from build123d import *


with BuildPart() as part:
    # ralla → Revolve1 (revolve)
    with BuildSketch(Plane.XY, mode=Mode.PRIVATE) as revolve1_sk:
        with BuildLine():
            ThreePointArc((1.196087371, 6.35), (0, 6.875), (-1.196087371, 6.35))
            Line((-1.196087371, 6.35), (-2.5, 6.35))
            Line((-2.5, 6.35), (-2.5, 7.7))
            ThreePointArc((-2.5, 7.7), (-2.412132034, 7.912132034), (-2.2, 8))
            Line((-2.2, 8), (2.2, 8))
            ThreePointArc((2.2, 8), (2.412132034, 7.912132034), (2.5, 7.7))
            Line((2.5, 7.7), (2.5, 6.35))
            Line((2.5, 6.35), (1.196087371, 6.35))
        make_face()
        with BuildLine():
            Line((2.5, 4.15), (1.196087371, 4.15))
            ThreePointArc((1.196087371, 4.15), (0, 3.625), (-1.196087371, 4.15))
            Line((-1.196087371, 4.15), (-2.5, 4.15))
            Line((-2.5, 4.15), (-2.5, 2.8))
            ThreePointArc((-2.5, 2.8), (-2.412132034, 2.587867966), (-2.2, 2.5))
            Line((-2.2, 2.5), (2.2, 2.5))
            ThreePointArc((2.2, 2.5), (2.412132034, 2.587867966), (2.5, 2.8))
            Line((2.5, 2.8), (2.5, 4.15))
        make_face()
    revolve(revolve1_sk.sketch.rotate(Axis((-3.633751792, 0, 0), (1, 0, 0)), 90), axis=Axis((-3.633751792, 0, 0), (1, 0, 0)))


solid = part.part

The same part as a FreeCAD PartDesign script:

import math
import FreeCAD as App
import Part
import Sketcher

doc = App.newDocument("Part")
params = doc.addObject("Spreadsheet::Sheet", "Params")
for row, (alias, value) in enumerate([
    ("sketch1_radius", "0.3 mm"),
    ("sketch1_width", "4.4 mm"),
    ("sketch1_height", "1.35 mm"),
    ("revolution_angle", "360 deg"),
], start=1):
    params.set(f"A{row}", alias)
    params.set(f"B{row}", "=" + value)
    params.setAlias(f"B{row}", alias)

body = doc.addObject("PartDesign::Body", "Body")
body.AllowCompound = True

sketch1 = doc.addObject("Sketcher::SketchObject", "Sketch")
body.addObject(sketch1)
sketch1.AttachmentSupport = (doc.XY_Plane, [""])
sketch1.MapMode = "FlatFace"
sketch1.addGeometry(Part.ArcOfCircle(Part.Circle(App.Vector(0, 5.25, 0), App.Vector(0, 0, 1), 1.62), math.radians(43), math.radians(137)), False)
sketch1.addGeometry(Part.LineSegment(App.Vector(1.2, 6.35, 0), App.Vector(2.5, 6.35, 0)), False)
sketch1.addGeometry(Part.LineSegment(App.Vector(2.5, 6.35, 0), App.Vector(2.5, 7.7, 0)), False)
sketch1.addGeometry(Part.ArcOfCircle(Part.Circle(App.Vector(2.2, 7.7, 0), App.Vector(0, 0, 1), 0.3), math.radians(0), math.radians(90)), False)
sketch1.addGeometry(Part.LineSegment(App.Vector(2.2, 8, 0), App.Vector(-2.2, 8, 0)), False)
sketch1.addGeometry(Part.ArcOfCircle(Part.Circle(App.Vector(-2.2, 7.7, 0), App.Vector(0, 0, 1), 0.3), math.radians(90), math.radians(180)), False)
sketch1.addGeometry(Part.LineSegment(App.Vector(-2.5, 7.7, 0), App.Vector(-2.5, 6.35, 0)), False)
sketch1.addGeometry(Part.LineSegment(App.Vector(-2.5, 6.35, 0), App.Vector(-1.2, 6.35, 0)), False)
sketch1.addGeometry(Part.LineSegment(App.Vector(2.5, 4.15, 0), App.Vector(1.2, 4.15, 0)), False)
sketch1.addGeometry(Part.ArcOfCircle(Part.Circle(App.Vector(0, 5.25, 0), App.Vector(0, 0, 1), 1.62), math.radians(-137), math.radians(-43)), False)
sketch1.addGeometry(Part.LineSegment(App.Vector(-1.2, 4.15, 0), App.Vector(-2.5, 4.15, 0)), False)
sketch1.addGeometry(Part.LineSegment(App.Vector(-2.5, 4.15, 0), App.Vector(-2.5, 2.8, 0)), False)
sketch1.addGeometry(Part.ArcOfCircle(Part.Circle(App.Vector(-2.2, 2.8, 0), App.Vector(0, 0, 1), 0.3), math.radians(-180), math.radians(-90)), False)
sketch1.addGeometry(Part.LineSegment(App.Vector(-2.2, 2.5, 0), App.Vector(2.2, 2.5, 0)), False)
sketch1.addGeometry(Part.ArcOfCircle(Part.Circle(App.Vector(2.2, 2.8, 0), App.Vector(0, 0, 1), 0.3), math.radians(-90), math.radians(0)), False)
sketch1.addGeometry(Part.LineSegment(App.Vector(2.5, 2.8, 0), App.Vector(2.5, 4.15, 0)), False)
sketch1.addConstraint(Sketcher.Constraint("Coincident", 0, 1, 1, 1))
sketch1.addConstraint(Sketcher.Constraint("Coincident", 1, 2, 2, 1))
sketch1.addConstraint(Sketcher.Constraint("Tangent", 2, 2, 3, 1))
sketch1.addConstraint(Sketcher.Constraint("Tangent", 3, 2, 4, 1))
sketch1.addConstraint(Sketcher.Constraint("Tangent", 4, 2, 5, 1))
sketch1.addConstraint(Sketcher.Constraint("Tangent", 5, 2, 6, 1))
sketch1.addConstraint(Sketcher.Constraint("Coincident", 6, 2, 7, 1))
sketch1.addConstraint(Sketcher.Constraint("Coincident", 7, 2, 0, 2))
sketch1.addConstraint(Sketcher.Constraint("Coincident", 8, 2, 9, 2))
sketch1.addConstraint(Sketcher.Constraint("Coincident", 9, 1, 10, 1))
sketch1.addConstraint(Sketcher.Constraint("Coincident", 10, 2, 11, 1))
sketch1.addConstraint(Sketcher.Constraint("Tangent", 11, 2, 12, 1))
sketch1.addConstraint(Sketcher.Constraint("Tangent", 12, 2, 13, 1))
sketch1.addConstraint(Sketcher.Constraint("Tangent", 13, 2, 14, 1))
sketch1.addConstraint(Sketcher.Constraint("Tangent", 14, 2, 15, 1))
sketch1.addConstraint(Sketcher.Constraint("Coincident", 15, 2, 8, 1))
sketch1.addConstraint(Sketcher.Constraint("Horizontal", 1))
sketch1.addConstraint(Sketcher.Constraint("Vertical", 2))
sketch1.addConstraint(Sketcher.Constraint("Horizontal", 4))
sketch1.addConstraint(Sketcher.Constraint("Vertical", 6))
sketch1.addConstraint(Sketcher.Constraint("Horizontal", 7))
sketch1.addConstraint(Sketcher.Constraint("Horizontal", 8))
sketch1.addConstraint(Sketcher.Constraint("Horizontal", 10))
sketch1.addConstraint(Sketcher.Constraint("Vertical", 11))
sketch1.addConstraint(Sketcher.Constraint("Horizontal", 13))
sketch1.addConstraint(Sketcher.Constraint("Vertical", 15))
sketch1.addConstraint(Sketcher.Constraint("Coincident", 9, 3, 0, 3))
sketch1.addConstraint(Sketcher.Constraint("Equal", 3, 5))
sketch1.addConstraint(Sketcher.Constraint("Equal", 0, 9))
sketch1.addConstraint(Sketcher.Constraint("Equal", 5, 12))
sketch1.addConstraint(Sketcher.Constraint("Equal", 12, 14))
sketch1.addConstraint(Sketcher.Constraint("Symmetric", 1, 2, 6, 2, -2))
sketch1.addConstraint(Sketcher.Constraint("Symmetric", 8, 2, 9, 1, -2))
sketch1.addConstraint(Sketcher.Constraint("Vertical", 5, 3, 12, 3))
sketch1.addConstraint(Sketcher.Constraint("Vertical", 3, 3, 14, 3))
sketch1.addConstraint(Sketcher.Constraint("Vertical", 0, 1, 8, 2))
sketch1.addConstraint(Sketcher.Constraint("Equal", 6, 11))
sketch1.addConstraint(Sketcher.Constraint("Radius", 3, 0.3))
sketch1.addConstraint(Sketcher.Constraint("DistanceX", 4, 2, 4, 1, 4.4))
sketch1.addConstraint(Sketcher.Constraint("DistanceY", -1, 1, 3, 2, 8.0))
sketch1.addConstraint(Sketcher.Constraint("Radius", 0, 1.625))
sketch1.addConstraint(Sketcher.Constraint("DistanceY", 2, 1, 2, 2, 1.35))
sketch1.addConstraint(Sketcher.Constraint("DistanceY", -1, 1, 12, 3, 2.8))
sketch1.setExpression("Constraints[37]", "Params.sketch1_radius")
sketch1.setExpression("Constraints[38]", "Params.sketch1_width")
sketch1.setExpression("Constraints[41]", "Params.sketch1_height")
revolution = doc.addObject("PartDesign::Revolution", "Revolution")
body.addObject(revolution)
revolution.Profile = sketch1
revolution.ReferenceAxis = (sketch1, ["H_Axis"])
revolution.setExpression("Angle", "Params.revolution_angle")

doc.recompute()
